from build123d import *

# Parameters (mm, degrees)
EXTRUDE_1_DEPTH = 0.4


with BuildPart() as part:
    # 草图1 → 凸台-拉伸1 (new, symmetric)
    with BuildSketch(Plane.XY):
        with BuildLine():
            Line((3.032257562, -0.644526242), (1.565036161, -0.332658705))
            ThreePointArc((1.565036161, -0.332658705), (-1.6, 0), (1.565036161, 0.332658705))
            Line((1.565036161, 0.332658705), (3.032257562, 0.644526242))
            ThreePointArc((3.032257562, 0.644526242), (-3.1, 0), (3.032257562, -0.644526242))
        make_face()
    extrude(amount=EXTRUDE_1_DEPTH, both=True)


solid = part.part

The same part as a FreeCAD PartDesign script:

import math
import FreeCAD as App
import Part
import Sketcher
from FreeCAD import Vector
Q = App.Units.Quantity

doc = App.newDocument("Part")
params = doc.addObject("Spreadsheet::Sheet", "Params")
for row, (alias, value) in enumerate([
    ("sketch1_radius", "1.6 mm"),
    ("sketch1_radius2", "3.1 mm"),
    ("pad1_length", "0.8 mm"),
], start=1):
    params.set(f"A{row}", alias)
    params.set(f"B{row}", "=" + value)
    params.setAlias(f"B{row}", alias)

body = doc.addObject("PartDesign::Body", "Body")

sketch1 = body.newObject("Sketcher::SketchObject", "Sketch")
sketch1.AttachmentSupport = (doc.getObject("XY_Plane"), [""])
sketch1.MapMode = "FlatFace"
sketch1.addGeometry([
    Part.LineSegment(Vector(3, -0.6, 0), Vector(1.6, -0.3, 0)),
    Part.ArcOfCircle(Part.Circle(Vector(0, 0, 0), Vector(0, 0, 1), 1.6), math.radians(12), math.radians(348)),
    Part.LineSegment(Vector(1.6, 0.3, 0), Vector(3, 0.6, 0)),
    Part.ArcOfCircle(Part.Circle(Vector(0, 0, 0), Vector(0, 0, 1), 3.1), math.radians(12), math.radians(348)),
], False)
sketch1.addConstraint([
    Sketcher.Constraint("Coincident", 0, 2, 1, 2),
    Sketcher.Constraint("Coincident", 1, 1, 2, 1),
    Sketcher.Constraint("Coincident", 2, 2, 3, 1),
    Sketcher.Constraint("Coincident", 3, 2, 0, 1),
    Sketcher.Constraint("Coincident", 1, 3, -1, 1),
    Sketcher.Constraint("Coincident", 3, 3, -1, 1),
    Sketcher.Constraint("Vertical", 0, 2, 1, 1),
    Sketcher.Constraint("Vertical", 2, 2, 3, 2),
    Sketcher.Constraint("Radius", 1, 1.6),
    Sketcher.Constraint("Radius", 3, 3.1),
    Sketcher.Constraint("Angle", 0, Q("168 deg")),
    Sketcher.Constraint("DistanceY", 0, 2, -1, 1, 0.332659),
])
sketch1.setExpression("Constraints[8]", "Params.sketch1_radius")
sketch1.setExpression("Constraints[9]", "Params.sketch1_radius2")
pad1 = body.newObject("PartDesign::Pad", "Pad")
pad1.Profile = sketch1
pad1.setExpression("Length", "Params.pad1_length")
pad1.Midplane = True

doc.recompute()
